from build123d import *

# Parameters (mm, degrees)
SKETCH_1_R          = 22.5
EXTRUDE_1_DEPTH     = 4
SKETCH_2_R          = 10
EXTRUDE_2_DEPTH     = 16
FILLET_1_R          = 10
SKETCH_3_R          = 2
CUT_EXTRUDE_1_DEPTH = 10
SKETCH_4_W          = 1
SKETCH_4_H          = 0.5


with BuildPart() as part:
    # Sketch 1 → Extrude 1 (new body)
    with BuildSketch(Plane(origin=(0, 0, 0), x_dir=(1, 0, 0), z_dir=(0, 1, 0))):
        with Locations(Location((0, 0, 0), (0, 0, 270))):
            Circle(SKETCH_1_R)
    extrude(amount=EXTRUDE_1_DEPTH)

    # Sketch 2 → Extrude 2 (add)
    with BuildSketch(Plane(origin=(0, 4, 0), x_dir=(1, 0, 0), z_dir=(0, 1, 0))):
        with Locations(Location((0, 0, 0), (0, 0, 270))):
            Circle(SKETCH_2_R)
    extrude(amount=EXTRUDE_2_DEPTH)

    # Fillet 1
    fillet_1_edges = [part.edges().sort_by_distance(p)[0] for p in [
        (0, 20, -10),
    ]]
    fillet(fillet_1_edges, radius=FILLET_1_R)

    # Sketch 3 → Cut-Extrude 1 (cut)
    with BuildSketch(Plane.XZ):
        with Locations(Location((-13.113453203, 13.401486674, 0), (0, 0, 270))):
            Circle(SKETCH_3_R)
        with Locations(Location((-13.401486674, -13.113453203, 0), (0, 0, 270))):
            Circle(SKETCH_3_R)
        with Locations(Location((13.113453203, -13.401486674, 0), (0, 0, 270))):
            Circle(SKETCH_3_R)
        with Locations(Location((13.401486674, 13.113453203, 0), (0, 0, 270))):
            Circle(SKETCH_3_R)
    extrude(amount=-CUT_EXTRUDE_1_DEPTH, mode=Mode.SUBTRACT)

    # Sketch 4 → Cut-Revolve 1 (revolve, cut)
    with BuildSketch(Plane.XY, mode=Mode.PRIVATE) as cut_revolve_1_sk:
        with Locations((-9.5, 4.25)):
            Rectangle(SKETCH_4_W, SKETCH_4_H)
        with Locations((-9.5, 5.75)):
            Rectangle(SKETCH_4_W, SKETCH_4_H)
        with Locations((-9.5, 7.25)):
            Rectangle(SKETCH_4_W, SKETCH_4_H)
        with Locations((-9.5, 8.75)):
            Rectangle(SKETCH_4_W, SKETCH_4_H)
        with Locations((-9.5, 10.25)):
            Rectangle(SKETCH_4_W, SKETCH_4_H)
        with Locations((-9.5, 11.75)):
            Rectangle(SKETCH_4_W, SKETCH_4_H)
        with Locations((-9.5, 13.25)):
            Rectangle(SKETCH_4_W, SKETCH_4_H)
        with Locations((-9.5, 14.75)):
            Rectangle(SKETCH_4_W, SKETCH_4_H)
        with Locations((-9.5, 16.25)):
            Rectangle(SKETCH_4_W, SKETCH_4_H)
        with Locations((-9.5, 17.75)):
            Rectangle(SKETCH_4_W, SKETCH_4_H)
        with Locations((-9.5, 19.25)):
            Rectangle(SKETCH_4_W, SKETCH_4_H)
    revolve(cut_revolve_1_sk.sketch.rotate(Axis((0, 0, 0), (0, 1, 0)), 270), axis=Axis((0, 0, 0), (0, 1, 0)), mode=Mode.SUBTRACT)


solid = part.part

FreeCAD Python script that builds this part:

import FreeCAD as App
import Part
import Sketcher


def edges_at(feature, points):
    """Names of the edges that pass closest to the given points."""
    edges = feature.Shape.Edges
    near = lambda p: min(range(len(edges)), key=lambda i: edges[i].distToShape(Part.Vertex(*p))[0])
    return sorted({f"Edge{near(p) + 1}" for p in points})

doc = App.newDocument("Part")
body = doc.addObject("PartDesign::Body", "Body")

# Sketch on XZ plane
sketch1 = body.newObject("Sketcher::SketchObject", "Sketch")
sketch1.AttachmentSupport = (doc.getObject("XZ_Plane"), [""])
sketch1.MapMode = "FlatFace"
sketch1.addGeometry(Part.Circle(App.Vector(0, 0, 0), App.Vector(0, 0, 1), 22), False)
sketch1.addConstraint(Sketcher.Constraint("Coincident", 0, 3, -1, 1))
sketch1.addConstraint(Sketcher.Constraint("Diameter", 0, 45.0))
pad1 = body.newObject("PartDesign::Pad", "Pad")
pad1.Profile = sketch1
pad1.Length = 4
pad1.Reversed = True

# Sketch on XZ plane
sketch2 = body.newObject("Sketcher::SketchObject", "Sketch001")
sketch2.AttachmentSupport = (doc.getObject("XZ_Plane"), [""])
sketch2.MapMode = "FlatFace"
sketch2.AttachmentOffset = App.Placement(App.Vector(0, 0, -4), App.Rotation())
sketch2.addGeometry(Part.Circle(App.Vector(0, 0, 0), App.Vector(0, 0, 1), 10), False)
sketch2.addConstraint(Sketcher.Constraint("Coincident", 0, 3, -1, 1))
sketch2.addConstraint(Sketcher.Constraint("Diameter", 0, 20.0))
pad2 = body.newObject("PartDesign::Pad", "Pad001")
pad2.Profile = sketch2
pad2.Length = 16
pad2.Reversed = True
doc.recompute()

fillet = body.newObject("PartDesign::Fillet", "Fillet")
fillet.Base = (pad2, edges_at(pad2, [(0, 20, -10)]))
fillet.Radius = 10

# Sketch on XZ plane
sketch3 = body.newObject("Sketcher::SketchObject", "Sketch002")
sketch3.AttachmentSupport = (doc.getObject("XZ_Plane"), [""])
sketch3.MapMode = "FlatFace"
sketch3.addGeometry(Part.Circle(App.Vector(-13.1, 13.4, 0), App.Vector(0, 0, 1), 2), False)
sketch3.addGeometry(Part.Circle(App.Vector(-13.4, -13.1, 0), App.Vector(0, 0, 1), 2), False)
sketch3.addGeometry(Part.Circle(App.Vector(13.1, -13.4, 0), App.Vector(0, 0, 1), 2), False)
sketch3.addGeometry(Part.Circle(App.Vector(13.4, 13.1, 0), App.Vector(0, 0, 1), 2), False)
sketch3.addConstraint(Sketcher.Constraint("Equal", 0, 1))
sketch3.addConstraint(Sketcher.Constraint("Equal", 1, 2))
sketch3.addConstraint(Sketcher.Constraint("Equal", 2, 3))
sketch3.addConstraint(Sketcher.Constraint("Symmetric", 0, 3, 2, 3, -1, 1))
sketch3.addConstraint(Sketcher.Constraint("Symmetric", 1, 3, 3, 3, -1, 1))
sketch3.addConstraint(Sketcher.Constraint("Diameter", 0, 4.0))
sketch3.addConstraint(Sketcher.Constraint("DistanceY", 1, 3, 0, 3, 26.51494))
sketch3.addConstraint(Sketcher.Constraint("DistanceX", 1, 3, 2, 3, 26.51494))
sketch3.addConstraint(Sketcher.Constraint("DistanceX", 0, 3, -1, 1, 13.113453))
sketch3.addConstraint(Sketcher.Constraint("DistanceY", -1, 1, 0, 3, 13.401487))
pocket1 = body.newObject("PartDesign::Pocket", "Pocket")
pocket1.Profile = sketch3
pocket1.Length = 10

# Sketch on XY plane
sketch4 = body.newObject("Sketcher::SketchObject", "Sketch003")
sketch4.AttachmentSupport = (doc.getObject("XY_Plane"), [""])
sketch4.MapMode = "FlatFace"
sketch4.addGeometry(Part.LineSegment(App.Vector(-10, 4.5, 0), App.Vector(-10, 4, 0)), False)
sketch4.addGeometry(Part.LineSegment(App.Vector(-10, 4, 0), App.Vector(-9, 4, 0)), False)
sketch4.addGeometry(Part.LineSegment(App.Vector(-9, 4, 0), App.Vector(-9, 4.5, 0)), False)
sketch4.addGeometry(Part.LineSegment(App.Vector(-9, 4.5, 0), App.Vector(-10, 4.5, 0)), False)
sketch4.addGeometry(Part.LineSegment(App.Vector(-10, 6, 0), App.Vector(-10, 5.5, 0)), False)
sketch4.addGeometry(Part.LineSegment(App.Vector(-10, 5.5, 0), App.Vector(-9, 5.5, 0)), False)
sketch4.addGeometry(Part.LineSegment(App.Vector(-9, 5.5, 0), App.Vector(-9, 6, 0)), False)
sketch4.addGeometry(Part.LineSegment(App.Vector(-9, 6, 0), App.Vector(-10, 6, 0)), False)
sketch4.addGeometry(Part.LineSegment(App.Vector(-10, 7.5, 0), App.Vector(-10, 7, 0)), False)
sketch4.addGeometry(Part.LineSegment(App.Vector(-10, 7, 0), App.Vector(-9, 7, 0)), False)
sketch4.addGeometry(Part.LineSegment(App.Vector(-9, 7, 0), App.Vector(-9, 7.5, 0)), False)
sketch4.addGeometry(Part.LineSegment(App.Vector(-9, 7.5, 0), App.Vector(-10, 7.5, 0)), False)
sketch4.addGeometry(Part.LineSegment(App.Vector(-10, 9, 0), App.Vector(-10, 8.5, 0)), False)
sketch4.addGeometry(Part.LineSegment(App.Vector(-10, 8.5, 0), App.Vector(-9, 8.5, 0)), False)
sketch4.addGeometry(Part.LineSegment(App.Vector(-9, 8.5, 0), App.Vector(-9, 9, 0)), False)
sketch4.addGeometry(Part.LineSegment(App.Vector(-9, 9, 0), App.Vector(-10, 9, 0)), False)
sketch4.addGeometry(Part.LineSegment(App.Vector(-10, 10.5, 0), App.Vector(-10, 10, 0)), False)
sketch4.addGeometry(Part.LineSegment(App.Vector(-10, 10, 0), App.Vector(-9, 10, 0)), False)
sketch4.addGeometry(Part.LineSegment(App.Vector(-9, 10, 0), App.Vector(-9, 10.5, 0)), False)
sketch4.addGeometry(Part.LineSegment(App.Vector(-9, 10.5, 0), App.Vector(-10, 10.5, 0)), False)
sketch4.addGeometry(Part.LineSegment(App.Vector(-10, 12, 0), App.Vector(-10, 11.5, 0)), False)
sketch4.addGeometry(Part.LineSegment(App.Vector(-10, 11.5, 0), App.Vector(-9, 11.5, 0)), False)
sketch4.addGeometry(Part.LineSegment(App.Vector(-9, 11.5, 0), App.Vector(-9, 12, 0)), False)
sketch4.addGeometry(Part.LineSegment(App.Vector(-9, 12, 0), App.Vector(-10, 12, 0)), False)
sketch4.addGeometry(Part.LineSegment(App.Vector(-10, 13.5, 0), App.Vector(-10, 13, 0)), False)
sketch4.addGeometry(Part.LineSegment(App.Vector(-10, 13, 0), App.Vector(-9, 13, 0)), False)
sketch4.addGeometry(Part.LineSegment(App.Vector(-9, 13, 0), App.Vector(-9, 13.5, 0)), False)
sketch4.addGeometry(Part.LineSegment(App.Vector(-9, 13.5, 0), App.Vector(-10, 13.5, 0)), False)
sketch4.addGeometry(Part.LineSegment(App.Vector(-10, 15, 0), App.Vector(-10, 14.5, 0)), False)
sketch4.addGeometry(Part.LineSegment(App.Vector(-10, 14.5, 0), App.Vector(-9, 14.5, 0)), False)
sketch4.addGeometry(Part.LineSegment(App.Vector(-9, 14.5, 0), App.Vector(-9, 15, 0)), False)
sketch4.addGeometry(Part.LineSegment(App.Vector(-9, 15, 0), App.Vector(-10, 15, 0)), False)
sketch4.addGeometry(Part.LineSegment(App.Vector(-10, 16.5, 0), App.Vector(-10, 16, 0)), False)
sketch4.addGeometry(Part.LineSegment(App.Vector(-10, 16, 0), App.Vector(-9, 16, 0)), False)
sketch4.addGeometry(Part.LineSegment(App.Vector(-9, 16, 0), App.Vector(-9, 16.5, 0)), False)
sketch4.addGeometry(Part.LineSegment(App.Vector(-9, 16.5, 0), App.Vector(-10, 16.5, 0)), False)
sketch4.addGeometry(Part.LineSegment(App.Vector(-10, 18, 0), App.Vector(-10, 17.5, 0)), False)
sketch4.addGeometry(Part.LineSegment(App.Vector(-10, 17.5, 0), App.Vector(-9, 17.5, 0)), False)
sketch4.addGeometry(Part.LineSegment(App.Vector(-9, 17.5, 0), App.Vector(-9, 18, 0)), False)
sketch4.addGeometry(Part.LineSegment(App.Vector(-9, 18, 0), App.Vector(-10, 18, 0)), False)
sketch4.addGeometry(Part.LineSegment(App.Vector(-10, 19.5, 0), App.Vector(-10, 19, 0)), False)
sketch4.addGeometry(Part.LineSegment(App.Vector(-10, 19, 0), App.Vector(-9, 19, 0)), False)
sketch4.addGeometry(Part.LineSegment(App.Vector(-9, 19, 0), App.Vector(-9, 19.5, 0)), False)
sketch4.addGeometry(Part.LineSegment(App.Vector(-9, 19.5, 0), App.Vector(-10, 19.5, 0)), False)
sketch4.addConstraint(Sketcher.Constraint("Coincident", 0, 2, 1, 1))
sketch4.addConstraint(Sketcher.Constraint("Coincident", 1, 2, 2, 1))
sketch4.addConstraint(Sketcher.Constraint("Coincident", 2, 2, 3, 1))
sketch4.addConstraint(Sketcher.Constraint("Coincident", 3, 2, 0, 1))
sketch4.addConstraint(Sketcher.Constraint("Coincident", 4, 2, 5, 1))
sketch4.addConstraint(Sketcher.Constraint("Coincident", 5, 2, 6, 1))
sketch4.addConstraint(Sketcher.Constraint("Coincident", 6, 2, 7, 1))
sketch4.addConstraint(Sketcher.Constraint("Coincident", 7, 2, 4, 1))
sketch4.addConstraint(Sketcher.Constraint("Coincident", 8, 2, 9, 1))
sketch4.addConstraint(Sketcher.Constraint("Coincident", 9, 2, 10, 1))
sketch4.addConstraint(Sketcher.Constraint("Coincident", 10, 2, 11, 1))
sketch4.addConstraint(Sketcher.Constraint("Coincident", 11, 2, 8, 1))
sketch4.addConstraint(Sketcher.Constraint("Coincident", 12, 2, 13, 1))
sketch4.addConstraint(Sketcher.Constraint("Coincident", 13, 2, 14, 1))
sketch4.addConstraint(Sketcher.Constraint("Coincident", 14, 2, 15, 1))
sketch4.addConstraint(Sketcher.Constraint("Coincident", 15, 2, 12, 1))
sketch4.addConstraint(Sketcher.Constraint("Coincident", 16, 2, 17, 1))
sketch4.addConstraint(Sketcher.Constraint("Coincident", 17, 2, 18, 1))
sketch4.addConstraint(Sketcher.Constraint("Coincident", 18, 2, 19, 1))
sketch4.addConstraint(Sketcher.Constraint("Coincident", 19, 2, 16, 1))
sketch4.addConstraint(Sketcher.Constraint("Coincident", 20, 2, 21, 1))
sketch4.addConstraint(Sketcher.Constraint("Coincident", 21, 2, 22, 1))
sketch4.addConstraint(Sketcher.Constraint("Coincident", 22, 2, 23, 1))
sketch4.addConstraint(Sketcher.Constraint("Coincident", 23, 2, 20, 1))
sketch4.addConstraint(Sketcher.Constraint("Coincident", 24, 2, 25, 1))
sketch4.addConstraint(Sketcher.Constraint("Coincident", 25, 2, 26, 1))
sketch4.addConstraint(Sketcher.Constraint("Coincident", 26, 2, 27, 1))
sketch4.addConstraint(Sketcher.Constraint("Coincident", 27, 2, 24, 1))
sketch4.addConstraint(Sketcher.Constraint("Coincident", 28, 2, 29, 1))
sketch4.addConstraint(Sketcher.Constraint("Coincident", 29, 2, 30, 1))
sketch4.addConstraint(Sketcher.Constraint("Coincident", 30, 2, 31, 1))
sketch4.addConstraint(Sketcher.Constraint("Coincident", 31, 2, 28, 1))
sketch4.addConstraint(Sketcher.Constraint("Coincident", 32, 2, 33, 1))
sketch4.addConstraint(Sketcher.Constraint("Coincident", 33, 2, 34, 1))
sketch4.addConstraint(Sketcher.Constraint("Coincident", 34, 2, 35, 1))
sketch4.addConstraint(Sketcher.Constraint("Coincident", 35, 2, 32, 1))
sketch4.addConstraint(Sketcher.Constraint("Coincident", 36, 2, 37, 1))
sketch4.addConstraint(Sketcher.Constraint("Coincident", 37, 2, 38, 1))
sketch4.addConstraint(Sketcher.Constraint("Coincident", 38, 2, 39, 1))
sketch4.addConstraint(Sketcher.Constraint("Coincident", 39, 2, 36, 1))
sketch4.addConstraint(Sketcher.Constraint("Coincident", 40, 2, 41, 1))
sketch4.addConstraint(Sketcher.Constraint("Coincident", 41, 2, 42, 1))
sketch4.addConstraint(Sketcher.Constraint("Coincident", 42, 2, 43, 1))
sketch4.addConstraint(Sketcher.Constraint("Coincident", 43, 2, 40, 1))
sketch4.addConstraint(Sketcher.Constraint("Vertical", 0))
sketch4.addConstraint(Sketcher.Constraint("Horizontal", 1))
sketch4.addConstraint(Sketcher.Constraint("Vertical", 2))
sketch4.addConstraint(Sketcher.Constraint("Horizontal", 3))
sketch4.addConstraint(Sketcher.Constraint("Vertical", 4))
sketch4.addConstraint(Sketcher.Constraint("Horizontal", 5))
sketch4.addConstraint(Sketcher.Constraint("Vertical", 6))
sketch4.addConstraint(Sketcher.Constraint("Horizontal", 7))
sketch4.addConstraint(Sketcher.Constraint("Vertical", 8))
sketch4.addConstraint(Sketcher.Constraint("Horizontal", 9))
sketch4.addConstraint(Sketcher.Constraint("Vertical", 10))
sketch4.addConstraint(Sketcher.Constraint("Horizontal", 11))
sketch4.addConstraint(Sketcher.Constraint("Vertical", 12))
sketch4.addConstraint(Sketcher.Constraint("Horizontal", 13))
sketch4.addConstraint(Sketcher.Constraint("Vertical", 14))
sketch4.addConstraint(Sketcher.Constraint("Horizontal", 15))
sketch4.addConstraint(Sketcher.Constraint("Vertical", 16))
sketch4.addConstraint(Sketcher.Constraint("Horizontal", 17))
sketch4.addConstraint(Sketcher.Constraint("Vertical", 18))
sketch4.addConstraint(Sketcher.Constraint("Horizontal", 19))
sketch4.addConstraint(Sketcher.Constraint("Vertical", 20))
sketch4.addConstraint(Sketcher.Constraint("Horizontal", 21))
sketch4.addConstraint(Sketcher.Constraint("Vertical", 22))
sketch4.addConstraint(Sketcher.Constraint("Horizontal", 23))
sketch4.addConstraint(Sketcher.Constraint("Vertical", 24))
sketch4.addConstraint(Sketcher.Constraint("Horizontal", 25))
sketch4.addConstraint(Sketcher.Constraint("Vertical", 26))
sketch4.addConstraint(Sketcher.Constraint("Horizontal", 27))
sketch4.addConstraint(Sketcher.Constraint("Vertical", 28))
sketch4.addConstraint(Sketcher.Constraint("Horizontal", 29))
sketch4.addConstraint(Sketcher.Constraint("Vertical", 30))
sketch4.addConstraint(Sketcher.Constraint("Horizontal", 31))
sketch4.addConstraint(Sketcher.Constraint("Vertical", 32))
sketch4.addConstraint(Sketcher.Constraint("Horizontal", 33))
sketch4.addConstraint(Sketcher.Constraint("Vertical", 34))
sketch4.addConstraint(Sketcher.Constraint("Horizontal", 35))
sketch4.addConstraint(Sketcher.Constraint("Vertical", 36))
sketch4.addConstraint(Sketcher.Constraint("Horizontal", 37))
sketch4.addConstraint(Sketcher.Constraint("Vertical", 38))
sketch4.addConstraint(Sketcher.Constraint("Horizontal", 39))
sketch4.addConstraint(Sketcher.Constraint("Vertical", 40))
sketch4.addConstraint(Sketcher.Constraint("Horizontal", 41))
sketch4.addConstraint(Sketcher.Constraint("Vertical", 42))
sketch4.addConstraint(Sketcher.Constraint("Horizontal", 43))
sketch4.addConstraint(Sketcher.Constraint("Vertical", 3, 2, 4, 2))
sketch4.addConstraint(Sketcher.Constraint("Vertical", 2, 2, 5, 2))
sketch4.addConstraint(Sketcher.Constraint("Vertical", 7, 2, 8, 2))
sketch4.addConstraint(Sketcher.Constraint("Vertical", 6, 2, 9, 2))
sketch4.addConstraint(Sketcher.Constraint("Vertical", 11, 2, 12, 2))
sketch4.addConstraint(Sketcher.Constraint("Vertical", 10, 2, 13, 2))
sketch4.addConstraint(Sketcher.Constraint("Vertical", 15, 2, 16, 2))
sketch4.addConstraint(Sketcher.Constraint("Vertical", 14, 2, 17, 2))
sketch4.addConstraint(Sketcher.Constraint("Vertical", 19, 2, 20, 2))
sketch4.addConstraint(Sketcher.Constraint("Vertical", 18, 2, 21, 2))
sketch4.addConstraint(Sketcher.Constraint("Vertical", 23, 2, 24, 2))
sketch4.addConstraint(Sketcher.Constraint("Vertical", 22, 2, 25, 2))
sketch4.addConstraint(Sketcher.Constraint("Vertical", 27, 2, 28, 2))
sketch4.addConstraint(Sketcher.Constraint("Vertical", 26, 2, 29, 2))
sketch4.addConstraint(Sketcher.Constraint("Vertical", 31, 2, 32, 2))
sketch4.addConstraint(Sketcher.Constraint("Vertical", 30, 2, 33, 2))
sketch4.addConstraint(Sketcher.Constraint("Vertical", 35, 2, 36, 2))
sketch4.addConstraint(Sketcher.Constraint("Vertical", 34, 2, 37, 2))
sketch4.addConstraint(Sketcher.Constraint("Vertical", 39, 2, 40, 2))
sketch4.addConstraint(Sketcher.Constraint("Vertical", 38, 2, 41, 2))
sketch4.addConstraint(Sketcher.Constraint("Equal", 2, 4))
sketch4.addConstraint(Sketcher.Constraint("Equal", 6, 8))
sketch4.addConstraint(Sketcher.Constraint("Equal", 10, 12))
sketch4.addConstraint(Sketcher.Constraint("Equal", 14, 16))
sketch4.addConstraint(Sketcher.Constraint("Equal", 18, 20))
sketch4.addConstraint(Sketcher.Constraint("Equal", 22, 24))
sketch4.addConstraint(Sketcher.Constraint("Equal", 26, 28))
sketch4.addConstraint(Sketcher.Constraint("Equal", 30, 32))
sketch4.addConstraint(Sketcher.Constraint("Equal", 34, 36))
sketch4.addConstraint(Sketcher.Constraint("Equal", 38, 40))
sketch4.addConstraint(Sketcher.Constraint("DistanceX", 1, 1, 1, 2, 1.0))
sketch4.addConstraint(Sketcher.Constraint("DistanceY", 0, 2, 0, 1, 0.5))
sketch4.addConstraint(Sketcher.Constraint("DistanceX", 0, 2, -1, 1, 10.0))
sketch4.addConstraint(Sketcher.Constraint("DistanceY", -1, 1, 0, 2, 4.0))
sketch4.addConstraint(Sketcher.Constraint("DistanceY", -1, 1, 6, 2, 6.0))
sketch4.addConstraint(Sketcher.Constraint("DistanceY", -1, 1, 8, 2, 7.0))
sketch4.addConstraint(Sketcher.Constraint("DistanceY", -1, 1, 14, 2, 9.0))
sketch4.addConstraint(Sketcher.Constraint("DistanceY", -1, 1, 16, 2, 10.0))
sketch4.addConstraint(Sketcher.Constraint("DistanceY", -1, 1, 22, 2, 12.0))
sketch4.addConstraint(Sketcher.Constraint("DistanceY", -1, 1, 24, 2, 13.0))
sketch4.addConstraint(Sketcher.Constraint("DistanceY", -1, 1, 30, 2, 15.0))
sketch4.addConstraint(Sketcher.Constraint("DistanceY", -1, 1, 32, 2, 16.0))
sketch4.addConstraint(Sketcher.Constraint("DistanceY", -1, 1, 38, 2, 18.0))
sketch4.addConstraint(Sketcher.Constraint("DistanceY", -1, 1, 40, 2, 19.0))
groove = body.newObject("PartDesign::Groove", "Groove")
groove.Profile = sketch4
groove.ReferenceAxis = (sketch4, ["V_Axis"])
groove.Angle = 360

doc.recompute()
